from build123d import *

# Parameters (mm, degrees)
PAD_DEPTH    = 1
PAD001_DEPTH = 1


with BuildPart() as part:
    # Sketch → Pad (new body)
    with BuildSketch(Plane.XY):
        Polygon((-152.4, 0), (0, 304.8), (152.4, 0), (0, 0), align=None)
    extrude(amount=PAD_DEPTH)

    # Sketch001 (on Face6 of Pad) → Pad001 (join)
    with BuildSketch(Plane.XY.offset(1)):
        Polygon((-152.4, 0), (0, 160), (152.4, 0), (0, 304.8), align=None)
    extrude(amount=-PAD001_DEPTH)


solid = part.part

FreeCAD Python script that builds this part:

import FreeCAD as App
import Part
import Sketcher
from FreeCAD import Vector
Q = App.Units.Quantity

doc = App.newDocument("Part")
body = doc.addObject("PartDesign::Body", "Body")

# Sketch on XY plane
sketch1 = body.newObject("Sketcher::SketchObject", "Sketch")
sketch1.AttachmentSupport = (doc.getObject("XY_Plane"), [""])
sketch1.MapMode = "FlatFace"
sketch1.addGeometry([
    Part.LineSegment(Vector(0, 304.8, 0), Vector(-152.4, 0, 0)),
    Part.LineSegment(Vector(-152.4, 0, 0), Vector(152.4, 0, 0)),
    Part.LineSegment(Vector(152.4, 0, 0), Vector(0, 304.8, 0)),
], False)
sketch1.addConstraint([
    Sketcher.Constraint("Coincident", 0, 2, 1, 1),
    Sketcher.Constraint("Coincident", 1, 2, 2, 1),
    Sketcher.Constraint("Coincident", 2, 2, 0, 1),
    Sketcher.Constraint("Horizontal", 1),
    Sketcher.Constraint("Symmetric", 0, 2, 1, 2, -1, 1),
    Sketcher.Constraint("PointOnObject", 2, 2, -2),
    Sketcher.Constraint("DistanceX", 1, 1, 1, 2, Q("304.8 mm")),
    Sketcher.Constraint("DistanceY", -1, 1, 2, 2, Q("304.8 mm")),
])
pad1 = body.newObject("PartDesign::Pad", "Pad")
pad1.Profile = sketch1
pad1.Length = 1

# Sketch on XY plane
sketch2 = body.newObject("Sketcher::SketchObject", "Sketch001")
sketch2.AttachmentSupport = (doc.getObject("XY_Plane"), [""])
sketch2.MapMode = "FlatFace"
sketch2.AttachmentOffset = App.Placement(Vector(0, 0, 1), App.Rotation())
sketch2.addGeometry([
    Part.LineSegment(Vector(-152.4, 0, 0), Vector(0, 160, 0)),
    Part.LineSegment(Vector(0, 160, 0), Vector(152.4, 0, 0)),
    Part.LineSegment(Vector(152.4, 0, 0), Vector(0, 304.8, 0)),
    Part.LineSegment(Vector(0, 304.8, 0), Vector(-152.4, 0, 0)),
], False)
sketch2.addConstraint([
    Sketcher.Constraint("Coincident", 0, 2, 1, 1),
    Sketcher.Constraint("Coincident", 1, 2, 2, 1),
    Sketcher.Constraint("Coincident", 2, 2, 3, 1),
    Sketcher.Constraint("Coincident", 3, 2, 0, 1),
    Sketcher.Constraint("Symmetric", 1, 2, 3, 2, -1, 1),
    Sketcher.Constraint("PointOnObject", 0, 2, -2),
    Sketcher.Constraint("PointOnObject", 1, 2, -1),
    Sketcher.Constraint("PointOnObject", 2, 2, -2),
    Sketcher.Constraint("DistanceY", -1, 1, 0, 2, Q("160 mm")),
    Sketcher.Constraint("DistanceX", -1, 1, 1, 2, Q("152.4 mm")),
    Sketcher.Constraint("DistanceY", -1, 1, 2, 2, Q("304.8 mm")),
])
pad2 = body.newObject("PartDesign::Pad", "Pad001")
pad2.Profile = sketch2
pad2.Length = 1
pad2.Reversed = True

doc.recompute()
